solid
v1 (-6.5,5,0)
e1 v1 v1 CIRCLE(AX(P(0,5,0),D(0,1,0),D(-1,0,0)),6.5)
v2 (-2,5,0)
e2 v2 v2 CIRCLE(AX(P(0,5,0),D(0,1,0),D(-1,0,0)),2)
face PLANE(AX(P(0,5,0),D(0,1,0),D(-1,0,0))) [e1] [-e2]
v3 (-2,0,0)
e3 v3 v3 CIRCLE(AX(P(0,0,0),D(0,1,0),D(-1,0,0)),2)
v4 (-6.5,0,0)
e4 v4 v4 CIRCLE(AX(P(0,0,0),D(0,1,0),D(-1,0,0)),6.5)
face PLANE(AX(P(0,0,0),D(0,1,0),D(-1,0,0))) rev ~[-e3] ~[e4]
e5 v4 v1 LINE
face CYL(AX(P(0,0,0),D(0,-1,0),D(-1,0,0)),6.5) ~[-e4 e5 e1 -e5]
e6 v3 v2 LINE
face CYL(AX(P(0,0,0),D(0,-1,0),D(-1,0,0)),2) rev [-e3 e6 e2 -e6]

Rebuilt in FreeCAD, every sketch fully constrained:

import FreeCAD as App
import Part
import Sketcher

doc = App.newDocument("Part")
body = doc.addObject("PartDesign::Body", "Body")

sketch1 = body.newObject("Sketcher::SketchObject", "Sketch")
sketch1.AttachmentSupport = (doc.getObject("XZ_Plane"), [""])
sketch1.MapMode = "FlatFace"
sketch1.addGeometry(Part.Circle(App.Vector(0, 0, 0), App.Vector(0, 0, 1), 6.5), False)
sketch1.addGeometry(Part.Circle(App.Vector(0, 0, 0), App.Vector(0, 0, 1), 2), False)
sketch1.addConstraint(Sketcher.Constraint("Coincident", 0, 3, -1, 1))
sketch1.addConstraint(Sketcher.Constraint("Coincident", 1, 3, -1, 1))
sketch1.addConstraint(Sketcher.Constraint("Diameter", 0, 13.0))
sketch1.addConstraint(Sketcher.Constraint("Diameter", 1, 4.0))
pad1 = body.newObject("PartDesign::Pad", "Pad")
pad1.Profile = sketch1
pad1.Length = 5
pad1.Reversed = True

doc.recompute()
